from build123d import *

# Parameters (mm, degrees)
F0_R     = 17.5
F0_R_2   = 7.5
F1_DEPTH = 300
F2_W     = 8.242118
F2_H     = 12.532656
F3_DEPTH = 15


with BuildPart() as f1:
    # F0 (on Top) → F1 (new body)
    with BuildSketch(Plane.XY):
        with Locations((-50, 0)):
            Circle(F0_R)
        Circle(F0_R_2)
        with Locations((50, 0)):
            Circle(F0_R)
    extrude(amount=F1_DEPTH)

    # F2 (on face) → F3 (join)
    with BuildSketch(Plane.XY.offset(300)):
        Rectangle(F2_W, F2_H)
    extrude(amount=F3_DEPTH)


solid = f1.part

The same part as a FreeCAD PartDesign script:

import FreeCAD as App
import Part
import Sketcher
Q = App.Units.Quantity


def add_polygon(sketch, points):
    """Adds a closed chain of lines whose ends are joined by coincident constraints."""
    first, n = sketch.GeometryCount, len(points)
    for a, b in zip(points, points[1:] + points[:1]):
        sketch.addGeometry(Part.LineSegment(App.Vector(*a, 0), App.Vector(*b, 0)), False)
    for i in range(n):
        sketch.addConstraint(Sketcher.Constraint("Coincident", first + i, 2, first + (i + 1) % n, 1))

doc = App.newDocument("Part")
body = doc.addObject("PartDesign::Body", "Body")
body.AllowCompound = True

# Sketch on XY plane
sketch1 = doc.addObject("Sketcher::SketchObject", "Sketch")
body.addObject(sketch1)
sketch1.AttachmentSupport = (doc.XY_Plane, [""])
sketch1.MapMode = "FlatFace"
sketch1.addGeometry([
    Part.Circle(App.Vector(-50, 0, 0), App.Vector(0, 0, 1), 17.5),
    Part.Circle(App.Vector(0, 0, 0), App.Vector(0, 0, 1), 7.5),
    Part.Circle(App.Vector(50, 0, 0), App.Vector(0, 0, 1), 17.5),
], False)
sketch1.addConstraint([
    Sketcher.Constraint("Coincident", 1, 3, -1, 1),
    Sketcher.Constraint("Equal", 0, 2),
    Sketcher.Constraint("Symmetric", 0, 3, 2, 3, -1, 1),
    Sketcher.Constraint("PointOnObject", 0, 3, -1),
    Sketcher.Constraint("Diameter", 0, Q("35 mm")),
    Sketcher.Constraint("Diameter", 1, Q("15 mm")),
    Sketcher.Constraint("DistanceX", 0, 3, -1, 1, Q("50 mm")),
])
pad1 = doc.addObject("PartDesign::Pad", "Pad")
body.addObject(pad1)
pad1.Profile = sketch1
pad1.Length = 300

# Sketch on XY plane
sketch2 = doc.addObject("Sketcher::SketchObject", "Sketch001")
body.addObject(sketch2)
sketch2.AttachmentSupport = (doc.XY_Plane, [""])
sketch2.MapMode = "FlatFace"
sketch2.AttachmentOffset = App.Placement(App.Vector(0, 0, 300), App.Rotation())
add_polygon(sketch2, [(-4.121059, 6.266328), (-4.121059, -6.266328), (4.121059, -6.266328), (4.121059, 6.266328)])  # lines 0-3
sketch2.addConstraint([
    Sketcher.Constraint("Vertical", 0),
    Sketcher.Constraint("Horizontal", 1),
    Sketcher.Constraint("Vertical", 2),
    Sketcher.Constraint("Horizontal", 3),
    Sketcher.Constraint("Symmetric", 0, 2, 2, 2, -1, 1),
    Sketcher.Constraint("DistanceX", 1, 1, 1, 2, Q("8.242118 mm")),
    Sketcher.Constraint("DistanceY", 0, 2, 0, 1, Q("12.532656 mm")),
])
pad2 = doc.addObject("PartDesign::Pad", "Pad001")
body.addObject(pad2)
pad2.Profile = sketch2
pad2.Length = 15

doc.recompute()
